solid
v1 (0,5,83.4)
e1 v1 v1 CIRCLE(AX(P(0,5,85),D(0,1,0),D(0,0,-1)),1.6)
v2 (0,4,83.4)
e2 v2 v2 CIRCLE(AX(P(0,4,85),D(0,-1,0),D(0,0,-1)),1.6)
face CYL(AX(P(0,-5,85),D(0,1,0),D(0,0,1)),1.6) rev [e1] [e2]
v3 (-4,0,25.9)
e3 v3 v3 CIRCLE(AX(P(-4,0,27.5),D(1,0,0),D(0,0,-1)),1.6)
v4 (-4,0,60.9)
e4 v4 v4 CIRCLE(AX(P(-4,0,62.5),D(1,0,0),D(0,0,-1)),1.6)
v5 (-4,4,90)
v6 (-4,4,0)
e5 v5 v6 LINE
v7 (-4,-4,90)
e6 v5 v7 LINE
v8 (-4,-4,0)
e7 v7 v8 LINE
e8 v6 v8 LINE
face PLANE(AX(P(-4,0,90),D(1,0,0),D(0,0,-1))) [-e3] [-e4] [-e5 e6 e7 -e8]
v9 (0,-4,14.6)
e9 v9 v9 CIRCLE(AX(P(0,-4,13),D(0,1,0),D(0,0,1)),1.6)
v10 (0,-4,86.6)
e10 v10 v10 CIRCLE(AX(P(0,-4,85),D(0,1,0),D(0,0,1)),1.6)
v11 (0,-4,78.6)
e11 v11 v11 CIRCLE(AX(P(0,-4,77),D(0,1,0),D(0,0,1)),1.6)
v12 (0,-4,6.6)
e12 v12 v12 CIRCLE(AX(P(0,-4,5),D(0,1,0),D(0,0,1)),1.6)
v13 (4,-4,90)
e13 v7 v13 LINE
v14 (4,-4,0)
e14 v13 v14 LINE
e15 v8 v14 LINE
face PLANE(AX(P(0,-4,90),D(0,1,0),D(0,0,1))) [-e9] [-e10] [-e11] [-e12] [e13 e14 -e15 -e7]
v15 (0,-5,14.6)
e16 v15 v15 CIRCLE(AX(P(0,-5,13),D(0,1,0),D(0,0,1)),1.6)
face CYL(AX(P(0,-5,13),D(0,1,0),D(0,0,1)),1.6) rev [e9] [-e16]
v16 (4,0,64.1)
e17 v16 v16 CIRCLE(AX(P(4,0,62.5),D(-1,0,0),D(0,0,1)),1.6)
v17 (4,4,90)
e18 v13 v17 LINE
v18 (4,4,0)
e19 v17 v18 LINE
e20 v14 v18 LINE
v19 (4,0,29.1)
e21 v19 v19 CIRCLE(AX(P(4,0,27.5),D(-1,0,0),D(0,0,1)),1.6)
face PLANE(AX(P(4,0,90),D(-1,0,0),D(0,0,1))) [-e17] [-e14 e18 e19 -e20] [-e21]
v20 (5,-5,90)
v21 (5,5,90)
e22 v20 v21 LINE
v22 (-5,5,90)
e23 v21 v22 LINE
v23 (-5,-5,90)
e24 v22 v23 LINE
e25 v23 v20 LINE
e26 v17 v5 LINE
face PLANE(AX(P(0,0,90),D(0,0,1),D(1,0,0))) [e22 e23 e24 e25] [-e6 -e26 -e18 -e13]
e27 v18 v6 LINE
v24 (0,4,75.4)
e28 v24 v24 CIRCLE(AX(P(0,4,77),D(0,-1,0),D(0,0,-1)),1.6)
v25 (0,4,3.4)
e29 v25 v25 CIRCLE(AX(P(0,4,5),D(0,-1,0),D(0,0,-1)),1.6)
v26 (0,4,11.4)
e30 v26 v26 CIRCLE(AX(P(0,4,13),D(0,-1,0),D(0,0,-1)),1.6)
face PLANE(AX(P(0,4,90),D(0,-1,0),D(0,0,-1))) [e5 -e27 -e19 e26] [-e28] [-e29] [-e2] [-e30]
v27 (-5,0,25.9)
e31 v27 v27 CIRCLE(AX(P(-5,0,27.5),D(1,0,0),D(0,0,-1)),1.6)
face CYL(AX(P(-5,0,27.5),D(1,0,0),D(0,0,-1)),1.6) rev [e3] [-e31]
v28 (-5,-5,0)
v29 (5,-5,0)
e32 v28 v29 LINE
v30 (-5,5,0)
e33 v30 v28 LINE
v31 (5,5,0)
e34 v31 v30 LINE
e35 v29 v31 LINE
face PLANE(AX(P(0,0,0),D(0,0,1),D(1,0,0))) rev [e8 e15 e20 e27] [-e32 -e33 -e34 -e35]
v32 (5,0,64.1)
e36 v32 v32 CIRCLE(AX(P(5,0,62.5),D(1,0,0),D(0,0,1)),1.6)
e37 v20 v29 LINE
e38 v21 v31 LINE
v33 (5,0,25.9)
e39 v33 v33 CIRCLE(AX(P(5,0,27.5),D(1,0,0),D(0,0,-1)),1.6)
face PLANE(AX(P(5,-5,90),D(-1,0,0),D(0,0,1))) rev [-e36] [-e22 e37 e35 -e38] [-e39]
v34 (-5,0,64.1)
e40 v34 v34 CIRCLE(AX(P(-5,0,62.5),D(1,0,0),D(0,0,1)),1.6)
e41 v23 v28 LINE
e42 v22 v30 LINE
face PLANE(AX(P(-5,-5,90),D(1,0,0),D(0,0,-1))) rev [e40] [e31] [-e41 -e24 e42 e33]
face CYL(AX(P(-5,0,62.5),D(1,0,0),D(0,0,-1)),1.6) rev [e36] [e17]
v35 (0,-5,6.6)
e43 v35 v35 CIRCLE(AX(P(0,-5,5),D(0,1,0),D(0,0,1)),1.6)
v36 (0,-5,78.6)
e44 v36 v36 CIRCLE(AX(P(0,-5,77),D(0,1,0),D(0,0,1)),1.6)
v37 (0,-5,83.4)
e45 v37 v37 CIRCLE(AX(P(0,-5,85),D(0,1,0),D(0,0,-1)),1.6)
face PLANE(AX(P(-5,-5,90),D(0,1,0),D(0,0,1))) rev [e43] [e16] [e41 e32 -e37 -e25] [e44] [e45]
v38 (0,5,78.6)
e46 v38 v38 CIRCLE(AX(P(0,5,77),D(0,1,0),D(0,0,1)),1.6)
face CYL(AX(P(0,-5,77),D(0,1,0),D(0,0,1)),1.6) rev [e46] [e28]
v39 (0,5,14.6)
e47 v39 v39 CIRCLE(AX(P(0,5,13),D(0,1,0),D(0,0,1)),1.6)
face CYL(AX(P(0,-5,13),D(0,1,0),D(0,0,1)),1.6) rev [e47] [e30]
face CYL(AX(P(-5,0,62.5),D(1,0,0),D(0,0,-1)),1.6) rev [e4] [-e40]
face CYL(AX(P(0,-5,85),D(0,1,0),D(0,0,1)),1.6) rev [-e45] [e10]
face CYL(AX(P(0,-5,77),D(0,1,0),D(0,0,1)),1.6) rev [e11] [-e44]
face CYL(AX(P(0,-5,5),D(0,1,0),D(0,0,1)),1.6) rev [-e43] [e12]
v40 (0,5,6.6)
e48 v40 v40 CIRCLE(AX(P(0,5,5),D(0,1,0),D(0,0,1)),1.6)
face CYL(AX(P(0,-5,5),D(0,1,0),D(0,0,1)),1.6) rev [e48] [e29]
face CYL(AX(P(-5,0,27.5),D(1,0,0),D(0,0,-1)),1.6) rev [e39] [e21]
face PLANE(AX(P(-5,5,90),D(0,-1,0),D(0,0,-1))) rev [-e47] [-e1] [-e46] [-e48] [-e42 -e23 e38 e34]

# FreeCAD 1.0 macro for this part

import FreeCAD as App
import Part
import Sketcher
Q = App.Units.Quantity


def add_polygon(sketch, points):
    """Adds a closed chain of lines whose ends are joined by coincident constraints."""
    first, n = sketch.GeometryCount, len(points)
    for a, b in zip(points, points[1:] + points[:1]):
        sketch.addGeometry(Part.LineSegment(App.Vector(*a, 0), App.Vector(*b, 0)), False)
    for i in range(n):
        sketch.addConstraint(Sketcher.Constraint("Coincident", first + i, 2, first + (i + 1) % n, 1))

doc = App.newDocument("Part")
params = doc.addObject("Spreadsheet::Sheet", "Params")
for row, (alias, value) in enumerate([
    ("sketch1_width", "10 mm"),
    ("sketch1_width2", "8 mm"),
    ("pad1_length", "90 mm"),
    ("sketch2_diameter", "3.2 mm"),
    ("sketch3_diameter", "3.2 mm"),
], start=1):
    params.set(f"A{row}", alias)
    params.set(f"B{row}", "=" + value)
    params.setAlias(f"B{row}", alias)

body = doc.addObject("PartDesign::Body", "Body")

sketch1 = body.newObject("Sketcher::SketchObject", "Sketch")
sketch1.AttachmentSupport = (doc.getObject("XY_Plane"), [""])
sketch1.MapMode = "FlatFace"
add_polygon(sketch1, [(-5, 5), (-5, -5), (5, -5), (5, 5)])
add_polygon(sketch1, [(4, -4), (-4, -4), (-4, 4), (4, 4)])
sketch1.addConstraint(Sketcher.Constraint("Vertical", 0))
sketch1.addConstraint(Sketcher.Constraint("Horizontal", 1))
sketch1.addConstraint(Sketcher.Constraint("Vertical", 2))
sketch1.addConstraint(Sketcher.Constraint("Horizontal", 3))
sketch1.addConstraint(Sketcher.Constraint("Horizontal", 4))
sketch1.addConstraint(Sketcher.Constraint("Vertical", 5))
sketch1.addConstraint(Sketcher.Constraint("Horizontal", 6))
sketch1.addConstraint(Sketcher.Constraint("Vertical", 7))
sketch1.addConstraint(Sketcher.Constraint("Symmetric", 0, 2, 2, 2, -1, 1))
sketch1.addConstraint(Sketcher.Constraint("Symmetric", 4, 2, 6, 2, -1, 1))
sketch1.addConstraint(Sketcher.Constraint("Equal", 3, 0))
sketch1.addConstraint(Sketcher.Constraint("Equal", 6, 5))
sketch1.addConstraint(Sketcher.Constraint("DistanceX", 1, 1, 1, 2, Q("10 mm")))
sketch1.addConstraint(Sketcher.Constraint("DistanceX", 4, 2, 4, 1, Q("8 mm")))
sketch1.setExpression("Constraints[20]", "Params.sketch1_width")
sketch1.setExpression("Constraints[21]", "Params.sketch1_width2")
pad1 = body.newObject("PartDesign::Pad", "Pad")
pad1.Profile = sketch1
pad1.setExpression("Length", "Params.pad1_length")

sketch2 = body.newObject("Sketcher::SketchObject", "Sketch001")
sketch2.AttachmentSupport = (doc.getObject("XZ_Plane"), [""])
sketch2.MapMode = "FlatFace"
sketch2.AttachmentOffset = App.Placement(App.Vector(0, 0, -5), App.Rotation())
sketch2.addGeometry(Part.Circle(App.Vector(0, 5, 0), App.Vector(0, 0, 1), 1.6), False)
sketch2.addGeometry(Part.Circle(App.Vector(0, 85, 0), App.Vector(0, 0, 1), 1.6), False)
sketch2.addGeometry(Part.Circle(App.Vector(0, 13, 0), App.Vector(0, 0, 1), 1.6), False)
sketch2.addGeometry(Part.Circle(App.Vector(0, 77, 0), App.Vector(0, 0, 1), 1.6), False)
sketch2.addConstraint(Sketcher.Constraint("Equal", 0, 1))
sketch2.addConstraint(Sketcher.Constraint("Equal", 1, 2))
sketch2.addConstraint(Sketcher.Constraint("Equal", 2, 3))
sketch2.addConstraint(Sketcher.Constraint("PointOnObject", 0, 3, -2))
sketch2.addConstraint(Sketcher.Constraint("PointOnObject", 1, 3, -2))
sketch2.addConstraint(Sketcher.Constraint("PointOnObject", 2, 3, -2))
sketch2.addConstraint(Sketcher.Constraint("PointOnObject", 3, 3, -2))
sketch2.addConstraint(Sketcher.Constraint("Diameter", 0, Q("3.2 mm")))
sketch2.addConstraint(Sketcher.Constraint("DistanceY", -1, 1, 0, 3, Q("5 mm")))
sketch2.addConstraint(Sketcher.Constraint("DistanceY", -1, 1, 1, 3, Q("85 mm")))
sketch2.addConstraint(Sketcher.Constraint("DistanceY", -1, 1, 2, 3, Q("13 mm")))
sketch2.addConstraint(Sketcher.Constraint("DistanceY", -1, 1, 3, 3, Q("77 mm")))
sketch2.setExpression("Constraints[7]", "Params.sketch2_diameter")
pocket1 = body.newObject("PartDesign::Pocket", "Pocket")
pocket1.Profile = sketch2
pocket1.Type = "ThroughAll"
pocket1.Reversed = True

sketch3 = body.newObject("Sketcher::SketchObject", "Sketch002")
sketch3.AttachmentSupport = (doc.getObject("YZ_Plane"), [""])
sketch3.MapMode = "FlatFace"
sketch3.AttachmentOffset = App.Placement(App.Vector(0, 0, 5), App.Rotation())
sketch3.addGeometry(Part.Circle(App.Vector(0, 27.5, 0), App.Vector(0, 0, 1), 1.6), False)
sketch3.addGeometry(Part.Circle(App.Vector(0, 62.5, 0), App.Vector(0, 0, 1), 1.6), False)
sketch3.addConstraint(Sketcher.Constraint("Equal", 0, 1))
sketch3.addConstraint(Sketcher.Constraint("PointOnObject", 0, 3, -2))
sketch3.addConstraint(Sketcher.Constraint("PointOnObject", 1, 3, -2))
sketch3.addConstraint(Sketcher.Constraint("Diameter", 0, Q("3.2 mm")))
sketch3.addConstraint(Sketcher.Constraint("DistanceY", 0, 3, 1, 3, Q("35 mm")))
sketch3.addConstraint(Sketcher.Constraint("DistanceY", -1, 1, 0, 3, Q("27.5 mm")))
sketch3.setExpression("Constraints[3]", "Params.sketch3_diameter")
pocket2 = body.newObject("PartDesign::Pocket", "Pocket001")
pocket2.Profile = sketch3
pocket2.Type = "ThroughAll"

doc.recompute()
